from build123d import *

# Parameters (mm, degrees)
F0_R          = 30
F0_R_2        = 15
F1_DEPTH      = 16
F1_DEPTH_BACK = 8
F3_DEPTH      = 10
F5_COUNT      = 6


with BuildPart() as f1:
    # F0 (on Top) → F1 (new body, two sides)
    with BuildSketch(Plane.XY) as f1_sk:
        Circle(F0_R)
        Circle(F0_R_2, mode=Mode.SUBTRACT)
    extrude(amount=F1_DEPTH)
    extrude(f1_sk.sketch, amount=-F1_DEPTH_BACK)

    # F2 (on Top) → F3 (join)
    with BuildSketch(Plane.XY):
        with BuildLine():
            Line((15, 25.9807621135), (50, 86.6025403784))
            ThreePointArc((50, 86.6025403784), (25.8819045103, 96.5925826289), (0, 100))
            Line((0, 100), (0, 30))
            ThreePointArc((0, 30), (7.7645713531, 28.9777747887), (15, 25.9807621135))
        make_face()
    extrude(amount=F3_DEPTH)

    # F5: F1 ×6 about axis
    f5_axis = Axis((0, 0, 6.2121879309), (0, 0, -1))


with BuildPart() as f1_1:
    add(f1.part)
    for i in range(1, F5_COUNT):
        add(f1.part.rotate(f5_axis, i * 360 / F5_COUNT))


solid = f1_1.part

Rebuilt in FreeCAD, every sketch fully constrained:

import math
import FreeCAD as App
import Part
import Sketcher

V = App.Vector
Q = App.Units.Quantity

doc = App.newDocument("Part")
params = doc.addObject("Spreadsheet::Sheet", "Params")
for row, (alias, value) in enumerate([
    ("sketch1_diameter", "60 mm"),
    ("sketch1_diameter2", "30 mm"),
    ("pad1_length", "16 mm"),
    ("pad1_length2", "8 mm"),
    ("sketch2_radius", "100 mm"),
    ("sketch2_radius2", "30 mm"),
    ("pad2_length", "10 mm"),
], start=1):
    params.set(f"A{row}", alias)
    params.set(f"B{row}", "=" + value)
    params.setAlias(f"B{row}", alias)

body = doc.addObject("PartDesign::Body", "Body")

sketch1 = body.newObject("Sketcher::SketchObject", "Sketch")
sketch1.AttachmentSupport = (doc.getObject("XY_Plane"), [""])
sketch1.MapMode = "FlatFace"
sketch1.addGeometry([
    Part.Circle(V(0, 0, 0), V(0, 0, 1), 30),
    Part.Circle(V(0, 0, 0), V(0, 0, 1), 15),
], False)
sketch1.addConstraint([
    Sketcher.Constraint("Coincident", 0, 3, -1, 1),
    Sketcher.Constraint("Coincident", 1, 3, -1, 1),
    Sketcher.Constraint("Diameter", 0, Q("60 mm")),
    Sketcher.Constraint("Diameter", 1, Q("30 mm")),
])
sketch1.setExpression("Constraints[2]", "Params.sketch1_diameter")
sketch1.setExpression("Constraints[3]", "Params.sketch1_diameter2")
pad1 = body.newObject("PartDesign::Pad", "Pad")
pad1.Profile = sketch1
pad1.Type = "TwoLengths"
pad1.setExpression("Length", "Params.pad1_length")
pad1.setExpression("Length2", "Params.pad1_length2")

sketch2 = body.newObject("Sketcher::SketchObject", "Sketch001")
sketch2.AttachmentSupport = (doc.getObject("XY_Plane"), [""])
sketch2.MapMode = "FlatFace"
sketch2.addGeometry([
    Part.LineSegment(V(15, 26, 0), V(50, 87, 0)),
    Part.ArcOfCircle(Part.Circle(V(0, 0, 0), V(0, 0, 1), 100), math.radians(60), math.radians(90)),
    Part.LineSegment(V(0, 100, 0), V(0, 30, 0)),
    Part.ArcOfCircle(Part.Circle(V(0, 0, 0), V(0, 0, 1), 30), math.radians(60), math.radians(90)),
], False)
sketch2.addConstraint([
    Sketcher.Constraint("Coincident", 0, 2, 1, 1),
    Sketcher.Constraint("Coincident", 1, 2, 2, 1),
    Sketcher.Constraint("Coincident", 2, 2, 3, 2),
    Sketcher.Constraint("Coincident", 3, 1, 0, 1),
    Sketcher.Constraint("Vertical", 2),
    Sketcher.Constraint("Coincident", 1, 3, -1, 1),
    Sketcher.Constraint("Coincident", 3, 3, -1, 1),
    Sketcher.Constraint("PointOnObject", 1, 2, -2),
    Sketcher.Constraint("Radius", 1, Q("100 mm")),
    Sketcher.Constraint("Radius", 3, Q("30 mm")),
    Sketcher.Constraint("Angle", 0, Q("60 deg")),
    Sketcher.Constraint("DistanceX", -1, 1, 0, 2, Q("50 mm")),
])
sketch2.setExpression("Constraints[8]", "Params.sketch2_radius")
sketch2.setExpression("Constraints[9]", "Params.sketch2_radius2")
pad2 = body.newObject("PartDesign::Pad", "Pad001")
pad2.Profile = sketch2
pad2.setExpression("Length", "Params.pad2_length")
body2 = doc.addObject("PartDesign::Body", "Body001")
doc.recompute()

body2.BaseFeature = body
doc.recompute()

body3 = doc.addObject("PartDesign::Body", "Body002")
body3.BaseFeature = body
body3.Placement = App.Placement(V(0, 0, 0), App.Rotation(V(0, 0, -1), 60))
boolean = body2.newObject("PartDesign::Boolean", "Boolean")
boolean.Type = "Fuse"
boolean.addObjects([body3])
doc.recompute()

body4 = doc.addObject("PartDesign::Body", "Body003")
body4.BaseFeature = body
body4.Placement = App.Placement(V(0, 0, 0), App.Rotation(V(0, 0, -1), 120))
boolean2 = body2.newObject("PartDesign::Boolean", "Boolean001")
boolean2.Type = "Fuse"
boolean2.addObjects([body4])
doc.recompute()

body5 = doc.addObject("PartDesign::Body", "Body004")
body5.BaseFeature = body
body5.Placement = App.Placement(V(0, 0, 0), App.Rotation(V(0, 0, -1), 180))
boolean3 = body2.newObject("PartDesign::Boolean", "Boolean002")
boolean3.Type = "Fuse"
boolean3.addObjects([body5])
doc.recompute()

body6 = doc.addObject("PartDesign::Body", "Body005")
body6.BaseFeature = body
body6.Placement = App.Placement(V(0, 0, 0), App.Rotation(V(0, 0, -1), 240))
boolean4 = body2.newObject("PartDesign::Boolean", "Boolean003")
boolean4.Type = "Fuse"
boolean4.addObjects([body6])
doc.recompute()

body.Placement = App.Placement(V(0, 0, 0), App.Rotation(V(0, 0, -1), 300))
boolean5 = body2.newObject("PartDesign::Boolean", "Boolean004")
boolean5.Type = "Fuse"
boolean5.addObjects([body])

doc.recompute()
